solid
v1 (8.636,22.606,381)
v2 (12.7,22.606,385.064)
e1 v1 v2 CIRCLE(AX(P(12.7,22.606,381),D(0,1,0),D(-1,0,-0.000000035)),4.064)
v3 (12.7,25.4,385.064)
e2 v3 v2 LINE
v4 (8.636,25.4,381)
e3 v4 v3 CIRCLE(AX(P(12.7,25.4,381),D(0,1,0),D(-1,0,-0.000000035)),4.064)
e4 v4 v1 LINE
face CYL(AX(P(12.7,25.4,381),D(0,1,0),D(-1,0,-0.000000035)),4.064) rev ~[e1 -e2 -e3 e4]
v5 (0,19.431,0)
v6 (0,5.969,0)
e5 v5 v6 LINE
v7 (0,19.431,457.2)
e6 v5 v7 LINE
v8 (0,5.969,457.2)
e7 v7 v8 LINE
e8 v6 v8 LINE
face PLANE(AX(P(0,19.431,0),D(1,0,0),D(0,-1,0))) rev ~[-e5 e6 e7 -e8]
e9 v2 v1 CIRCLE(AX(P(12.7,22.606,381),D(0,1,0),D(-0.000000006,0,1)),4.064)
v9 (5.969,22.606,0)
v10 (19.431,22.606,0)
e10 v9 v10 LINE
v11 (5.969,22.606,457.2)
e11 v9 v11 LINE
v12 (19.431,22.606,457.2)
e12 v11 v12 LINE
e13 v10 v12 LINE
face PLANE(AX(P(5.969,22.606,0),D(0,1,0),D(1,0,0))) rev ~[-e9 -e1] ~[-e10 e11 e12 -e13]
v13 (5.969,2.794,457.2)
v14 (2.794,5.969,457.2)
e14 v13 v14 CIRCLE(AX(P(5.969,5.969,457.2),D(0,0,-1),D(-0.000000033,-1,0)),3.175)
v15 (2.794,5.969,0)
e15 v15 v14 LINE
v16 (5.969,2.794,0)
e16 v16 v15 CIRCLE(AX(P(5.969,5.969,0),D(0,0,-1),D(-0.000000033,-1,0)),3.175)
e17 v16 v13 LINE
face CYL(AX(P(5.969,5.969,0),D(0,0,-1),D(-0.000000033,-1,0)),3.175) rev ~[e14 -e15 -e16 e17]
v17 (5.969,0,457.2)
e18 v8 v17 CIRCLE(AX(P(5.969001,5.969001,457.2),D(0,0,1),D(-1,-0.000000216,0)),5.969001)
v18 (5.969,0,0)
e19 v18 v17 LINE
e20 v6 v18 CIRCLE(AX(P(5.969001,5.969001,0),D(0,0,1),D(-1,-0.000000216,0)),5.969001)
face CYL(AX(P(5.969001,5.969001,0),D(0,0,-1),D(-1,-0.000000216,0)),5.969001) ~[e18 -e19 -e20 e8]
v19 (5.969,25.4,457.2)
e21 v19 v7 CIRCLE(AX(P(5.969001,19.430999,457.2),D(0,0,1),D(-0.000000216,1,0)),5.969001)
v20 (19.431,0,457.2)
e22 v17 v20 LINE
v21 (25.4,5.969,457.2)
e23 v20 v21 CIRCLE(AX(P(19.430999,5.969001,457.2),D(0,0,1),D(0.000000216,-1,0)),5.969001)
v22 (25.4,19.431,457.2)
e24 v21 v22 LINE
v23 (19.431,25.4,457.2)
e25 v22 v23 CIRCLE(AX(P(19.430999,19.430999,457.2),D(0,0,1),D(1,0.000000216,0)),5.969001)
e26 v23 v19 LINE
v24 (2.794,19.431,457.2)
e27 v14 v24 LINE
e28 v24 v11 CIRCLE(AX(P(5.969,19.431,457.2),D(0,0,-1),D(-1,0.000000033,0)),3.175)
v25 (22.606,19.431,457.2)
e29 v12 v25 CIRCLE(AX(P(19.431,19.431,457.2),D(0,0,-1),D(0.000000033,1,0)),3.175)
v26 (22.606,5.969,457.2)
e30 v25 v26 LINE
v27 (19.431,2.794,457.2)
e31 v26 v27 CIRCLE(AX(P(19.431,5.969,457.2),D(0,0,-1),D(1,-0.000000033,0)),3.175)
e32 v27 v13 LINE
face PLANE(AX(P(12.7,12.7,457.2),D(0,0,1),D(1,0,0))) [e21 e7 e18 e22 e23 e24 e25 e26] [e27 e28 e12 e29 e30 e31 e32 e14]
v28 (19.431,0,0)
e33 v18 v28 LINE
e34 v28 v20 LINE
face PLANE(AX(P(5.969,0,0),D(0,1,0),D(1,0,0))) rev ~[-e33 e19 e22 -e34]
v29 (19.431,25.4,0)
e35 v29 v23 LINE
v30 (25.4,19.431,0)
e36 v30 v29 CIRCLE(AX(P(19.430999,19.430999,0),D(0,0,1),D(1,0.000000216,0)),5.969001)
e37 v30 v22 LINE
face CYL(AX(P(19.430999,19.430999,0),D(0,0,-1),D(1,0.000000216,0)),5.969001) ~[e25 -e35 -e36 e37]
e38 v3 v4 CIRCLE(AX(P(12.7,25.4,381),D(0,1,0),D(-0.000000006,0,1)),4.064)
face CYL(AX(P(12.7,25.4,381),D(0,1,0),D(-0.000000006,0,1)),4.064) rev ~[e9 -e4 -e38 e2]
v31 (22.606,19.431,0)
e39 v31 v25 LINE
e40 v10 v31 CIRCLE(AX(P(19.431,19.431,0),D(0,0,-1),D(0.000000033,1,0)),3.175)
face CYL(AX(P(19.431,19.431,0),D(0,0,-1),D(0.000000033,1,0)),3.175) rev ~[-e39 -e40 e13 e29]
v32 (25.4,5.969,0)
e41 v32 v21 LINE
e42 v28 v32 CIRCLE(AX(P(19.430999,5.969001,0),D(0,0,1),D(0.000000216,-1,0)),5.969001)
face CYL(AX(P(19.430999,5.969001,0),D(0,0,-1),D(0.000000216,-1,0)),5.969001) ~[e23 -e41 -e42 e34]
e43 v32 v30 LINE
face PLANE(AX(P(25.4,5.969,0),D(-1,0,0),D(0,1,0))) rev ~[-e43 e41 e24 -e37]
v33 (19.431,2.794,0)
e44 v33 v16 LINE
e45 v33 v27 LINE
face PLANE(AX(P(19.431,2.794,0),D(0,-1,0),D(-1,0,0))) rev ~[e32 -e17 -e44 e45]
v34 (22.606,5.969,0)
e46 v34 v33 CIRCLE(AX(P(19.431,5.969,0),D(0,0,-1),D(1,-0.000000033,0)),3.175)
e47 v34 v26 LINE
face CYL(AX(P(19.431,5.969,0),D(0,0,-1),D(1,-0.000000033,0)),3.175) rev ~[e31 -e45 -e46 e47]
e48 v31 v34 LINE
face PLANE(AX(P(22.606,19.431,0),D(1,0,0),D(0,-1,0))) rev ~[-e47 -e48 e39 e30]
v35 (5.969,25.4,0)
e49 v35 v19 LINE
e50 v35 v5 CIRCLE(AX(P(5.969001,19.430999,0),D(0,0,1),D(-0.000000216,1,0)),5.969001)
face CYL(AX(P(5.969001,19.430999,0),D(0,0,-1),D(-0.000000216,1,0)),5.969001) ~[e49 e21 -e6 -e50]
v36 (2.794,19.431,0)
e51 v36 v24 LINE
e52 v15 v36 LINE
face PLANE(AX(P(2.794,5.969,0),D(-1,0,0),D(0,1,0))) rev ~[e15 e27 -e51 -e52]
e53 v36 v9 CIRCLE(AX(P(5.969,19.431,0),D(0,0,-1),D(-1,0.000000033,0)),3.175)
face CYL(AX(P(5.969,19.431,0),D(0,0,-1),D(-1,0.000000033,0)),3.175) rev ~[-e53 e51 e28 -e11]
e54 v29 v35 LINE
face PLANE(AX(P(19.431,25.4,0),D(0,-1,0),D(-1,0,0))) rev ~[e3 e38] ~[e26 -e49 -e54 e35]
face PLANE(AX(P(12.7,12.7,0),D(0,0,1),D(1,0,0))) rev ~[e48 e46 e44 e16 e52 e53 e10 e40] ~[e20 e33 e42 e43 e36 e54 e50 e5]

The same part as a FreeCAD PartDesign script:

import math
import FreeCAD as App
import Part
import Sketcher
Q = App.Units.Quantity

doc = App.newDocument("Part")
body = doc.addObject("PartDesign::Body", "Body")

# Sketch on XY plane
sketch1 = doc.addObject("Sketcher::SketchObject", "Sketch")
body.addObject(sketch1)
sketch1.AttachmentSupport = (doc.XY_Plane, [""])
sketch1.MapMode = "FlatFace"
sketch1.addGeometry([
    Part.ArcOfCircle(Part.Circle(App.Vector(6, 6, 0), App.Vector(0, 0, 1), 6), math.radians(-180), math.radians(-90)),  # 0
    Part.LineSegment(App.Vector(6, 0, 0), App.Vector(19.4, 0, 0)),  # 1
    Part.ArcOfCircle(Part.Circle(App.Vector(19.4, 6, 0), App.Vector(0, 0, 1), 6), math.radians(-90), math.radians(0)),  # 2
    Part.LineSegment(App.Vector(25.4, 6, 0), App.Vector(25.4, 19.4, 0)),  # 3
    Part.ArcOfCircle(Part.Circle(App.Vector(19.4, 19.4, 0), App.Vector(0, 0, 1), 6), math.radians(0), math.radians(90)),  # 4
    Part.LineSegment(App.Vector(19.4, 25.4, 0), App.Vector(6, 25.4, 0)),  # 5
    Part.ArcOfCircle(Part.Circle(App.Vector(6, 19.4, 0), App.Vector(0, 0, 1), 6), math.radians(90), math.radians(180)),  # 6
    Part.LineSegment(App.Vector(0, 19.4, 0), App.Vector(0, 6, 0)),  # 7
    Part.LineSegment(App.Vector(2.8, 6, 0), App.Vector(2.8, 19.4, 0)),  # 8
    Part.ArcOfCircle(Part.Circle(App.Vector(6, 19.4, 0), App.Vector(0, 0, 1), 3.2), math.radians(90), math.radians(180)),  # 9
    Part.LineSegment(App.Vector(6, 22.6, 0), App.Vector(19.4, 22.6, 0)),  # 10
    Part.ArcOfCircle(Part.Circle(App.Vector(19.4, 19.4, 0), App.Vector(0, 0, 1), 3.2), math.radians(0), math.radians(90)),  # 11
    Part.LineSegment(App.Vector(22.6, 19.4, 0), App.Vector(22.6, 6, 0)),  # 12
    Part.ArcOfCircle(Part.Circle(App.Vector(19.4, 6, 0), App.Vector(0, 0, 1), 3.2), math.radians(-90), math.radians(0)),  # 13
    Part.LineSegment(App.Vector(19.4, 2.8, 0), App.Vector(6, 2.8, 0)),  # 14
    Part.ArcOfCircle(Part.Circle(App.Vector(6, 6, 0), App.Vector(0, 0, 1), 3.2), math.radians(-180), math.radians(-90)),  # 15
], False)
sketch1.addConstraint([
    Sketcher.Constraint("Tangent", 0, 2, 1, 1),
    Sketcher.Constraint("Tangent", 1, 2, 2, 1),
    Sketcher.Constraint("Tangent", 2, 2, 3, 1),
    Sketcher.Constraint("Tangent", 3, 2, 4, 1),
    Sketcher.Constraint("Tangent", 4, 2, 5, 1),
    Sketcher.Constraint("Tangent", 5, 2, 6, 1),
    Sketcher.Constraint("Tangent", 6, 2, 7, 1),
    Sketcher.Constraint("Tangent", 7, 2, 0, 1),
    Sketcher.Constraint("Tangent", 8, 2, 9, 2),
    Sketcher.Constraint("Tangent", 9, 1, 10, 1),
    Sketcher.Constraint("Tangent", 10, 2, 11, 2),
    Sketcher.Constraint("Tangent", 11, 1, 12, 1),
    Sketcher.Constraint("Tangent", 12, 2, 13, 2),
    Sketcher.Constraint("Tangent", 13, 1, 14, 1),
    Sketcher.Constraint("Tangent", 14, 2, 15, 2),
    Sketcher.Constraint("Tangent", 15, 1, 8, 1),
    Sketcher.Constraint("Horizontal", 1),
    Sketcher.Constraint("Vertical", 3),
    Sketcher.Constraint("Horizontal", 5),
    Sketcher.Constraint("Vertical", 7),
    Sketcher.Constraint("Vertical", 8),
    Sketcher.Constraint("Horizontal", 10),
    Sketcher.Constraint("Vertical", 12),
    Sketcher.Constraint("Horizontal", 14),
    Sketcher.Constraint("Coincident", 9, 3, 6, 3),
    Sketcher.Constraint("Coincident", 11, 3, 4, 3),
    Sketcher.Constraint("Coincident", 13, 3, 2, 3),
    Sketcher.Constraint("Equal", 0, 2),
    Sketcher.Constraint("Equal", 2, 4),
    Sketcher.Constraint("Equal", 4, 6),
    Sketcher.Constraint("Equal", 13, 15),
    Sketcher.Constraint("PointOnObject", 0, 2, -1),
    Sketcher.Constraint("PointOnObject", 6, 2, -2),
    Sketcher.Constraint("Equal", 14, 3),
    Sketcher.Constraint("DistanceX", -1, 1, 2, 2, Q("1 in")),
    Sketcher.Constraint("Radius", 0, Q("0.2350001 in")),
    Sketcher.Constraint("Radius", 9, Q("0.125 in")),
])
pad1 = doc.addObject("PartDesign::Pad", "Pad")
body.addObject(pad1)
pad1.Profile = sketch1
pad1.Length = Q("18 in")

# Sketch on XZ plane
sketch2 = doc.addObject("Sketcher::SketchObject", "Sketch001")
body.addObject(sketch2)
sketch2.AttachmentSupport = (doc.XZ_Plane, [""])
sketch2.MapMode = "FlatFace"
sketch2.AttachmentOffset = App.Placement(App.Vector(0, 0, -1 * 25.4), App.Rotation())
sketch2.addGeometry([
    Part.ArcOfCircle(Part.Circle(App.Vector(12.7, 381, 0), App.Vector(0, 0, 1), 4.1), math.radians(90), math.radians(180)),
    Part.ArcOfCircle(Part.Circle(App.Vector(12.7, 381, 0), App.Vector(0, 0, 1), 4.1), math.radians(180), math.radians(450)),
], False)
sketch2.addConstraint([
    Sketcher.Constraint("Tangent", 0, 1, 1, 2),
    Sketcher.Constraint("Coincident", 1, 1, 0, 2),
    Sketcher.Constraint("Horizontal", 0, 3, 1, 1),
    Sketcher.Constraint("Vertical", 1, 3, 0, 1),
    Sketcher.Constraint("Radius", 0, Q("0.16 in")),
    Sketcher.Constraint("DistanceY", -1, 1, 0, 3, Q("15 in")),
    Sketcher.Constraint("DistanceX", -1, 1, 0, 3, Q("0.5 in")),
])
pocket1 = doc.addObject("PartDesign::Pocket", "Pocket")
body.addObject(pocket1)
pocket1.Profile = sketch2
pocket1.Length = Q("0.11 in")
pocket1.Reversed = True

doc.recompute()
